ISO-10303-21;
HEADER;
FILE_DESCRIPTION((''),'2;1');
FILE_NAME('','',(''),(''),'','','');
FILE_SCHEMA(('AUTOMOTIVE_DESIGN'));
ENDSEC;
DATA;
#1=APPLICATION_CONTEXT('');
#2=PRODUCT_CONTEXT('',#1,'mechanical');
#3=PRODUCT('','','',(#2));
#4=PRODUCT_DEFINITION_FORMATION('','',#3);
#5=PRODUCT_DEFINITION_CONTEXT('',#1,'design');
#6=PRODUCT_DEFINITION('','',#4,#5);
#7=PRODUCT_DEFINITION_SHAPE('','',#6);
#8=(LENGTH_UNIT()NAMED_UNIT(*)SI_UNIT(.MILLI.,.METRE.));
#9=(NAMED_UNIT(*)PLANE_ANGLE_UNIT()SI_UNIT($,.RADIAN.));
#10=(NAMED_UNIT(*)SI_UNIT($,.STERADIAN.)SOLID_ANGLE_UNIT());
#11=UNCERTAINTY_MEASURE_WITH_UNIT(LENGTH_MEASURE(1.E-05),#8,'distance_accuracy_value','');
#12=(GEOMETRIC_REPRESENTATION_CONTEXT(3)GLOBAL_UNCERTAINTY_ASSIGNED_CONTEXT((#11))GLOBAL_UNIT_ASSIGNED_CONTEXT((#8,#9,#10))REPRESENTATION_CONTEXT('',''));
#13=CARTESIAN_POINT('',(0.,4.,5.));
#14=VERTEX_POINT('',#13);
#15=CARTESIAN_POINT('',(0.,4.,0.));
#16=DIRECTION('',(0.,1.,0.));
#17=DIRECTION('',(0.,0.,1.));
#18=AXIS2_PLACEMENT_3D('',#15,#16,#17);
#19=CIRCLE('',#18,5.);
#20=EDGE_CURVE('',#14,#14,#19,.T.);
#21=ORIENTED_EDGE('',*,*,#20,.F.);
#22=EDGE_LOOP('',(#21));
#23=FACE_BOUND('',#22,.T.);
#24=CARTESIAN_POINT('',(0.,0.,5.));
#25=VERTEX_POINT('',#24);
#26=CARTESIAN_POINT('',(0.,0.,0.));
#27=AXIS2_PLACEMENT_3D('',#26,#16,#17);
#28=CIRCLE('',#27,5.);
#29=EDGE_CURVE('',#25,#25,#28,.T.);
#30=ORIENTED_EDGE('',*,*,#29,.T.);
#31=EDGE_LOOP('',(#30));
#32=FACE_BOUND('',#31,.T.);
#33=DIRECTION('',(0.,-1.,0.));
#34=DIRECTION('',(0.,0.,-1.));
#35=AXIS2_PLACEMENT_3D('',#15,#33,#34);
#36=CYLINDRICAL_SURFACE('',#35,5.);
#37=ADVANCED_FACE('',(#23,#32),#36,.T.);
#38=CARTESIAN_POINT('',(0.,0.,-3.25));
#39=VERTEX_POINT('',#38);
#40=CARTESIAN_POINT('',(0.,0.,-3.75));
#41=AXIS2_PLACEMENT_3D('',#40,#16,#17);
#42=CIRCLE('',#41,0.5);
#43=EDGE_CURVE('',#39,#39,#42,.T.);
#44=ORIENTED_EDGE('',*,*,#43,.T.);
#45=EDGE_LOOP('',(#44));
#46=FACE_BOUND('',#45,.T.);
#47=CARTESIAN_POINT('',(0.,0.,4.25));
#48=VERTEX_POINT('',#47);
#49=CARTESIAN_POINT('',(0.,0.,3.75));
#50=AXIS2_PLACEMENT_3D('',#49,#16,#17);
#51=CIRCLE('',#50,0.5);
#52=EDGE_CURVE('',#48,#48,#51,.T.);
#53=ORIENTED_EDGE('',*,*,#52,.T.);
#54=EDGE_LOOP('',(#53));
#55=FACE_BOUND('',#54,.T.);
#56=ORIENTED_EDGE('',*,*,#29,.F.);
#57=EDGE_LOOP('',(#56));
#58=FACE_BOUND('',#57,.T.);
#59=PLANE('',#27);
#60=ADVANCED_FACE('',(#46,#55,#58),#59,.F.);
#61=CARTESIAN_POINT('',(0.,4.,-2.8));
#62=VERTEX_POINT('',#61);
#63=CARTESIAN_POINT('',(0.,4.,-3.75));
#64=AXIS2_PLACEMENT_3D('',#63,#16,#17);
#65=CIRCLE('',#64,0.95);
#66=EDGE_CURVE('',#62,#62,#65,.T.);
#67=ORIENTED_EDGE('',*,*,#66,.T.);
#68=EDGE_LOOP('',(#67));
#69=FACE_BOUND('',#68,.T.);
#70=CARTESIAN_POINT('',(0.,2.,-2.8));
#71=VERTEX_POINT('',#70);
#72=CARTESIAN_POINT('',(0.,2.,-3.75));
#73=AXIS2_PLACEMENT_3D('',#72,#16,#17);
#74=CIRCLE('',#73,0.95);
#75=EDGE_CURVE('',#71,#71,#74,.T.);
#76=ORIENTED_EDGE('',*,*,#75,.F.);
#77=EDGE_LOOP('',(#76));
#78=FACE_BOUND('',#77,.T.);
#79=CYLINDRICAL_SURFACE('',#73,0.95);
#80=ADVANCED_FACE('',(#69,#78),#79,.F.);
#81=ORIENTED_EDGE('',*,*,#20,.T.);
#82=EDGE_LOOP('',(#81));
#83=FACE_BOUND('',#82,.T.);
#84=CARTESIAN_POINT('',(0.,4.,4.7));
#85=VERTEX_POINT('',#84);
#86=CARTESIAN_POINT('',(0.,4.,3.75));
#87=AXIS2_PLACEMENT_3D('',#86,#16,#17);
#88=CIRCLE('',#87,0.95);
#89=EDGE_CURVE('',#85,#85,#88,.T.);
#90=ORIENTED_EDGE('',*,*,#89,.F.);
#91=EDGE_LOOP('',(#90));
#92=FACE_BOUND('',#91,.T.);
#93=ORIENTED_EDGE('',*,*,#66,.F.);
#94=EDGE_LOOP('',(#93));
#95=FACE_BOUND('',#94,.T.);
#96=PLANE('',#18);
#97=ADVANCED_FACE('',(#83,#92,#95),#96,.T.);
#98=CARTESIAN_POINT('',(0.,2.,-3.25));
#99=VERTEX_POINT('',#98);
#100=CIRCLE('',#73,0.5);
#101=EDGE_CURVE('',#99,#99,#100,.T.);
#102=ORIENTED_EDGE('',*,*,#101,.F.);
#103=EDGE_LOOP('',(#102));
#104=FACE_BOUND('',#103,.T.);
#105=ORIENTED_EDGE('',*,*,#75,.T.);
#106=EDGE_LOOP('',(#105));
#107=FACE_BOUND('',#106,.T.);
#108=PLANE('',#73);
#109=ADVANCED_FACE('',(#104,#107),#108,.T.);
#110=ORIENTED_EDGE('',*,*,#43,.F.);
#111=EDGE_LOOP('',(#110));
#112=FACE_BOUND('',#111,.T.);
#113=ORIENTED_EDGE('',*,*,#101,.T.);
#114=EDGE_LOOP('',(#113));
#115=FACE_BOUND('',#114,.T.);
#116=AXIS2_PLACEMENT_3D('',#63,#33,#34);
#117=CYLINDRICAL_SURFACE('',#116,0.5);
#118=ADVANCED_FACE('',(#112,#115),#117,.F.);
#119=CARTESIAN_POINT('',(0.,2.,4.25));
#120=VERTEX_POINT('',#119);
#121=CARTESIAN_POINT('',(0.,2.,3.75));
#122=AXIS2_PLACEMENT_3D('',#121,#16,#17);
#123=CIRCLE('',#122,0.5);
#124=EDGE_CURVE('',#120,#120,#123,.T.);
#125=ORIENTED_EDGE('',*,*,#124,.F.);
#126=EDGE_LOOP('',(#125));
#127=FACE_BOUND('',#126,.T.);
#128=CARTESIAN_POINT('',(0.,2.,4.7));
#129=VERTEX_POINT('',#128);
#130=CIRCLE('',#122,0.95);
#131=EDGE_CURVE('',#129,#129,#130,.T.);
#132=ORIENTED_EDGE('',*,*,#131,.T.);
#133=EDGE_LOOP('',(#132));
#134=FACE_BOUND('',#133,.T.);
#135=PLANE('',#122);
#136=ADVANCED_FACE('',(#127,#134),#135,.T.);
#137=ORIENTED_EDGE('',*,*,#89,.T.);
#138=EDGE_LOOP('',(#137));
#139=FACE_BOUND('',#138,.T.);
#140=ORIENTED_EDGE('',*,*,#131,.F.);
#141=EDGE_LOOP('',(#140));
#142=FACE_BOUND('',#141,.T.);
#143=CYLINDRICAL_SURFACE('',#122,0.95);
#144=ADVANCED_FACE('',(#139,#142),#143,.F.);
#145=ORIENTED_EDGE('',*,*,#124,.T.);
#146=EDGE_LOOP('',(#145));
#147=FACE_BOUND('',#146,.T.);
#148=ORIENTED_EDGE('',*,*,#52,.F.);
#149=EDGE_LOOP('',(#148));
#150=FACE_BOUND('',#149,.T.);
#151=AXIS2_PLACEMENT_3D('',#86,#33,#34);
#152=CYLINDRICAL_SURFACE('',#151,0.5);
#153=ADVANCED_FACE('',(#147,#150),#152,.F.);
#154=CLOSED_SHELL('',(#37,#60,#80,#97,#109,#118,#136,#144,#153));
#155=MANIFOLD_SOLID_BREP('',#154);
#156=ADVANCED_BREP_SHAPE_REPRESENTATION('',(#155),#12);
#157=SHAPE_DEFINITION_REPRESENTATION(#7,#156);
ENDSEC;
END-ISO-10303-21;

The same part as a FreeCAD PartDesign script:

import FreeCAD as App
import Part
import Sketcher
from FreeCAD import Vector
Q = App.Units.Quantity

doc = App.newDocument("Part")
body = doc.addObject("PartDesign::Body", "Body")

sketch1 = doc.addObject("Sketcher::SketchObject", "Sketch")
body.addObject(sketch1)
sketch1.AttachmentSupport = (doc.XZ_Plane, [""])
sketch1.MapMode = "FlatFace"
sketch1.addGeometry(Part.Circle(Vector(0, 0, 0), Vector(0, 0, 1), 5), False)
sketch1.addGeometry(Part.Circle(Vector(0, 3.8, 0), Vector(0, 0, 1), 0.5), False)
sketch1.addGeometry(Part.Circle(Vector(0, -3.8, 0), Vector(0, 0, 1), 0.5), False)
sketch1.addConstraint(Sketcher.Constraint("Coincident", 0, 3, -1, 1))
sketch1.addConstraint(Sketcher.Constraint("Equal", 1, 2))
sketch1.addConstraint(Sketcher.Constraint("Symmetric", 1, 3, 2, 3, -1, 1))
sketch1.addConstraint(Sketcher.Constraint("PointOnObject", 1, 3, -2))
sketch1.addConstraint(Sketcher.Constraint("Diameter", 0, Q("10 mm")))
sketch1.addConstraint(Sketcher.Constraint("Diameter", 1, Q("1 mm")))
sketch1.addConstraint(Sketcher.Constraint("DistanceY", 2, 3, 1, 3, Q("7.5 mm")))
pad1 = doc.addObject("PartDesign::Pad", "Pad")
body.addObject(pad1)
pad1.Profile = sketch1
pad1.Length = 4
pad1.Reversed = True

sketch2 = doc.addObject("Sketcher::SketchObject", "Sketch001")
body.addObject(sketch2)
sketch2.AttachmentSupport = (doc.XZ_Plane, [""])
sketch2.MapMode = "FlatFace"
sketch2.AttachmentOffset = App.Placement(Vector(0, 0, -4), App.Rotation())
sketch2.addGeometry(Part.Circle(Vector(0, -3.8, 0), Vector(0, 0, 1), 0.9), False)
sketch2.addGeometry(Part.Circle(Vector(0, 3.8, 0), Vector(0, 0, 1), 0.9), False)
sketch2.addConstraint(Sketcher.Constraint("Equal", 0, 1))
sketch2.addConstraint(Sketcher.Constraint("Symmetric", 0, 3, 1, 3, -1, 1))
sketch2.addConstraint(Sketcher.Constraint("PointOnObject", 0, 3, -2))
sketch2.addConstraint(Sketcher.Constraint("Diameter", 0, Q("1.9 mm")))
sketch2.addConstraint(Sketcher.Constraint("DistanceY", 0, 3, 1, 3, Q("7.5 mm")))
pocket1 = doc.addObject("PartDesign::Pocket", "Pocket")
body.addObject(pocket1)
pocket1.Profile = sketch2
pocket1.Length = 2
pocket1.Reversed = True

doc.recompute()
